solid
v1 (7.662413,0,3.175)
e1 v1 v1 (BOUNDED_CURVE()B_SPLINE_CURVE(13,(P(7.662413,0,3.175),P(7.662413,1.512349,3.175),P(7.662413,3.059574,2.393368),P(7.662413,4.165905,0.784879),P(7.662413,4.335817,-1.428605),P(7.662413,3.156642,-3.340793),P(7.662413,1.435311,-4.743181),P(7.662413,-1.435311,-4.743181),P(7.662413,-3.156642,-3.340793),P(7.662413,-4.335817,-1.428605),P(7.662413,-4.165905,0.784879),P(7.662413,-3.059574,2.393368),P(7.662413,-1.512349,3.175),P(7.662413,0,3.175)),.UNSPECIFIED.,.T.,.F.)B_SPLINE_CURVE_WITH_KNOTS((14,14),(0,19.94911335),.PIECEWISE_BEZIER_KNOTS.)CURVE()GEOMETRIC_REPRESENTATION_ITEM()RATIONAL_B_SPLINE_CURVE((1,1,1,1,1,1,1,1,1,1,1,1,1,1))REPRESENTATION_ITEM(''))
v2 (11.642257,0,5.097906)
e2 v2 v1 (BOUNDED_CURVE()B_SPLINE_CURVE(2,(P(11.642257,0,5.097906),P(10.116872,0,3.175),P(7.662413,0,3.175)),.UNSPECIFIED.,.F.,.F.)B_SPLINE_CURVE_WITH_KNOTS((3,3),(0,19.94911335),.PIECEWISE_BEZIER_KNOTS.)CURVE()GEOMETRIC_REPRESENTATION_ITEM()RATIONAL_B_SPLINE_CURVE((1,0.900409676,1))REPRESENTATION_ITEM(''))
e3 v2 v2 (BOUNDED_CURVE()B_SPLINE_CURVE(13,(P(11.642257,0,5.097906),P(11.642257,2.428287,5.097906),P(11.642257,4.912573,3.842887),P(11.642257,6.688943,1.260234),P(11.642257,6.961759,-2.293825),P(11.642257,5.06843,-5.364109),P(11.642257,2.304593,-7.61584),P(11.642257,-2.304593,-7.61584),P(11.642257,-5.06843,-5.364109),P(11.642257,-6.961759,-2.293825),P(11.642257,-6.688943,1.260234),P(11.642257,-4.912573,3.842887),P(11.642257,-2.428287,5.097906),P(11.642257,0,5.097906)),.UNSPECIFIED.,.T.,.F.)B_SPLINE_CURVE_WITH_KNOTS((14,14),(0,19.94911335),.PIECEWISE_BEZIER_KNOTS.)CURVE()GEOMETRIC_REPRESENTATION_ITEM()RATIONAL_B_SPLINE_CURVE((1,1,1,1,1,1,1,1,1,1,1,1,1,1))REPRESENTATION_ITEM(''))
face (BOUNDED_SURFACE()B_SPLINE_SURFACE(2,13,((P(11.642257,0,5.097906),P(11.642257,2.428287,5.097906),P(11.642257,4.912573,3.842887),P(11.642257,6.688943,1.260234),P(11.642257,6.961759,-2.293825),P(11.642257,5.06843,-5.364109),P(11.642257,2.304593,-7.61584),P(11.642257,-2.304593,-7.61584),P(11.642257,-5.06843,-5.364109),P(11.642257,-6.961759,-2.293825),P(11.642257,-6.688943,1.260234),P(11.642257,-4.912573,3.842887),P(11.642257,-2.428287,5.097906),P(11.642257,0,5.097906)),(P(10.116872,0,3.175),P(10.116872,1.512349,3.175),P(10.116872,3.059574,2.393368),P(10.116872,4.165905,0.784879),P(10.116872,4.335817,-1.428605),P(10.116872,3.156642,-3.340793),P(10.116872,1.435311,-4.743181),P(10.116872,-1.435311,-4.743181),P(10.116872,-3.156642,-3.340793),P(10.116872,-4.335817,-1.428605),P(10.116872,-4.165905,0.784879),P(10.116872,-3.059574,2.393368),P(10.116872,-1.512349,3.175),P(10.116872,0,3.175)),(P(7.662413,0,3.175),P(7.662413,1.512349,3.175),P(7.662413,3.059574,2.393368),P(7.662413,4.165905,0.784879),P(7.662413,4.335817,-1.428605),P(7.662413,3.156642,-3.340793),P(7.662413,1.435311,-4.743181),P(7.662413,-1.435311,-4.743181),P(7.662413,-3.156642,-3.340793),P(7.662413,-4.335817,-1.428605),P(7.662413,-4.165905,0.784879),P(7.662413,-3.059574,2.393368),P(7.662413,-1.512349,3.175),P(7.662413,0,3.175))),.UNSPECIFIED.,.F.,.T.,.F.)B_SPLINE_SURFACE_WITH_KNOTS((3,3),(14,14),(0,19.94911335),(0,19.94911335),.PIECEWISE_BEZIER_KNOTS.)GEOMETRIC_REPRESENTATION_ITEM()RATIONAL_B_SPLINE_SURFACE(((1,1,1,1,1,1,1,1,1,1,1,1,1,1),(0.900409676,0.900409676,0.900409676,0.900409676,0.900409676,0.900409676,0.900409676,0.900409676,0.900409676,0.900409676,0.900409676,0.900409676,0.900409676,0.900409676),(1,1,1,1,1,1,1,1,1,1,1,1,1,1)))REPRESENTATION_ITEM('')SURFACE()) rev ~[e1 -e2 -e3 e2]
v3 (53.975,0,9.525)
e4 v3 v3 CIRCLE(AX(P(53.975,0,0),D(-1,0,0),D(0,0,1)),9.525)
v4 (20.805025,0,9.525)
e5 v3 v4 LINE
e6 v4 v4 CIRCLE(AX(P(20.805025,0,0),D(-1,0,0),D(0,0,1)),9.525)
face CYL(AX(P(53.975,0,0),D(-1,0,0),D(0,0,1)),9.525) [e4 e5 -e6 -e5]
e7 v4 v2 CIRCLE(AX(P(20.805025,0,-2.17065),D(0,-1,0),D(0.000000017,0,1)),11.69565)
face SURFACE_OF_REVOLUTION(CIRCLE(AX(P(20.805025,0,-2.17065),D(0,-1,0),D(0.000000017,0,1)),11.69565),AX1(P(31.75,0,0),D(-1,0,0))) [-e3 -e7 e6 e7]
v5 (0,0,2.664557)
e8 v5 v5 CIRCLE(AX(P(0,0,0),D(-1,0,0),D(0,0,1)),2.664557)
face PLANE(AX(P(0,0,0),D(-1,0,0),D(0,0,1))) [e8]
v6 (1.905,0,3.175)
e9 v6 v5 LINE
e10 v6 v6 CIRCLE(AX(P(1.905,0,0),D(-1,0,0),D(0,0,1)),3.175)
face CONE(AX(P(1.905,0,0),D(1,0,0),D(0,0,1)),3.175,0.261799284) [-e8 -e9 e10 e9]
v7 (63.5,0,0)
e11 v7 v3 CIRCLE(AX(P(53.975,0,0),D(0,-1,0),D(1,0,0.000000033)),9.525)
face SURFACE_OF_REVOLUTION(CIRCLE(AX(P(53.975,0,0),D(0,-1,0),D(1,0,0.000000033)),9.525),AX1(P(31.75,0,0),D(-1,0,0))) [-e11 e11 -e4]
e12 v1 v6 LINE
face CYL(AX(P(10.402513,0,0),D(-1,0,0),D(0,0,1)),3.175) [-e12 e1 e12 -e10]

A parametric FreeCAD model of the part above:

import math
import FreeCAD as App
import Part
import Sketcher

V = App.Vector
Q = App.Units.Quantity


def edges_at(feature, points):
    """Names of the edges that pass closest to the given points."""
    edges = feature.Shape.Edges
    near = lambda p: min(range(len(edges)), key=lambda i: edges[i].distToShape(Part.Vertex(*p))[0])
    return sorted({f"Edge{near(p) + 1}" for p in points})

doc = App.newDocument("Part")
body = doc.addObject("PartDesign::Body", "Body")

# Sketch on XZ plane
sketch1 = body.newObject("Sketcher::SketchObject", "Sketch")
sketch1.AttachmentSupport = (doc.getObject("XZ_Plane"), [""])
sketch1.MapMode = "FlatFace"
sketch1.addGeometry(Part.LineSegment(V(0, 3.175, 0), V(0, 0, 0)), False)
sketch1.addGeometry(Part.LineSegment(V(0, 0, 0), V(63.5, 0, 0)), False)
sketch1.addGeometry(Part.ArcOfCircle(Part.Circle(V(53.975, 0, 0), V(0, 0, 1), 9.525), math.radians(0.000002), math.radians(89.999998)), False)
sketch1.addGeometry(Part.LineSegment(V(53.975, 9.525, 0), V(20.805025, 9.525, 0)), False)
sketch1.addGeometry(Part.ArcOfCircle(Part.Circle(V(20.805025, -2.17065, 0), V(0, 0, 1), 11.69565), math.radians(89.999999), math.radians(152.802245)), False)
sketch1.addGeometry(Part.LineSegment(V(10.402513, 3.175, 0), V(0, 3.175, 0)), False)
sketch1.addConstraint(Sketcher.Constraint("Coincident", 0, 2, 1, 1))
sketch1.addConstraint(Sketcher.Constraint("Coincident", 1, 2, 2, 1))
sketch1.addConstraint(Sketcher.Constraint("Tangent", 2, 2, 3, 1))
sketch1.addConstraint(Sketcher.Constraint("Tangent", 3, 2, 4, 1))
sketch1.addConstraint(Sketcher.Constraint("Coincident", 4, 2, 5, 1))
sketch1.addConstraint(Sketcher.Constraint("Coincident", 5, 2, 0, 1))
sketch1.addConstraint(Sketcher.Constraint("Vertical", 0))
sketch1.addConstraint(Sketcher.Constraint("Horizontal", 1))
sketch1.addConstraint(Sketcher.Constraint("Horizontal", 3))
sketch1.addConstraint(Sketcher.Constraint("Horizontal", 5))
sketch1.addConstraint(Sketcher.Constraint("Coincident", 0, 2, -1, 1))
sketch1.addConstraint(Sketcher.Constraint("PointOnObject", 2, 3, -1))
sketch1.addConstraint(Sketcher.Constraint("DistanceX", 1, 1, 1, 2, Q("2.5 in")))
sketch1.addConstraint(Sketcher.Constraint("Radius", 2, Q("0.375 in")))
sketch1.addConstraint(Sketcher.Constraint("DistanceY", 0, 2, 0, 1, Q("0.125 in")))
sketch1.addConstraint(Sketcher.Constraint("Radius", 4, 11.69565))
sketch1.addConstraint(Sketcher.Constraint("DistanceX", 3, 2, 3, 1, 33.169975))
revolution = body.newObject("PartDesign::Revolution", "Revolution")
revolution.Profile = sketch1
revolution.ReferenceAxis = (sketch1, ["H_Axis"])
revolution.Angle = 360
doc.recompute()

fillet = body.newObject("PartDesign::Fillet", "Fillet")
fillet.Base = (revolution, edges_at(revolution, [(10.403, 0, -3.175)]))
fillet.Radius = Q("0.2 in")
doc.recompute()

chamfer = body.newObject("PartDesign::Chamfer", "Chamfer")
chamfer.Base = (fillet, edges_at(fillet, [(0, 0, -3.175)]))
chamfer.ChamferType = "Two distances"
chamfer.Size = Q("0.075 in")
chamfer.Size2 = 0.510443

doc.recompute()
